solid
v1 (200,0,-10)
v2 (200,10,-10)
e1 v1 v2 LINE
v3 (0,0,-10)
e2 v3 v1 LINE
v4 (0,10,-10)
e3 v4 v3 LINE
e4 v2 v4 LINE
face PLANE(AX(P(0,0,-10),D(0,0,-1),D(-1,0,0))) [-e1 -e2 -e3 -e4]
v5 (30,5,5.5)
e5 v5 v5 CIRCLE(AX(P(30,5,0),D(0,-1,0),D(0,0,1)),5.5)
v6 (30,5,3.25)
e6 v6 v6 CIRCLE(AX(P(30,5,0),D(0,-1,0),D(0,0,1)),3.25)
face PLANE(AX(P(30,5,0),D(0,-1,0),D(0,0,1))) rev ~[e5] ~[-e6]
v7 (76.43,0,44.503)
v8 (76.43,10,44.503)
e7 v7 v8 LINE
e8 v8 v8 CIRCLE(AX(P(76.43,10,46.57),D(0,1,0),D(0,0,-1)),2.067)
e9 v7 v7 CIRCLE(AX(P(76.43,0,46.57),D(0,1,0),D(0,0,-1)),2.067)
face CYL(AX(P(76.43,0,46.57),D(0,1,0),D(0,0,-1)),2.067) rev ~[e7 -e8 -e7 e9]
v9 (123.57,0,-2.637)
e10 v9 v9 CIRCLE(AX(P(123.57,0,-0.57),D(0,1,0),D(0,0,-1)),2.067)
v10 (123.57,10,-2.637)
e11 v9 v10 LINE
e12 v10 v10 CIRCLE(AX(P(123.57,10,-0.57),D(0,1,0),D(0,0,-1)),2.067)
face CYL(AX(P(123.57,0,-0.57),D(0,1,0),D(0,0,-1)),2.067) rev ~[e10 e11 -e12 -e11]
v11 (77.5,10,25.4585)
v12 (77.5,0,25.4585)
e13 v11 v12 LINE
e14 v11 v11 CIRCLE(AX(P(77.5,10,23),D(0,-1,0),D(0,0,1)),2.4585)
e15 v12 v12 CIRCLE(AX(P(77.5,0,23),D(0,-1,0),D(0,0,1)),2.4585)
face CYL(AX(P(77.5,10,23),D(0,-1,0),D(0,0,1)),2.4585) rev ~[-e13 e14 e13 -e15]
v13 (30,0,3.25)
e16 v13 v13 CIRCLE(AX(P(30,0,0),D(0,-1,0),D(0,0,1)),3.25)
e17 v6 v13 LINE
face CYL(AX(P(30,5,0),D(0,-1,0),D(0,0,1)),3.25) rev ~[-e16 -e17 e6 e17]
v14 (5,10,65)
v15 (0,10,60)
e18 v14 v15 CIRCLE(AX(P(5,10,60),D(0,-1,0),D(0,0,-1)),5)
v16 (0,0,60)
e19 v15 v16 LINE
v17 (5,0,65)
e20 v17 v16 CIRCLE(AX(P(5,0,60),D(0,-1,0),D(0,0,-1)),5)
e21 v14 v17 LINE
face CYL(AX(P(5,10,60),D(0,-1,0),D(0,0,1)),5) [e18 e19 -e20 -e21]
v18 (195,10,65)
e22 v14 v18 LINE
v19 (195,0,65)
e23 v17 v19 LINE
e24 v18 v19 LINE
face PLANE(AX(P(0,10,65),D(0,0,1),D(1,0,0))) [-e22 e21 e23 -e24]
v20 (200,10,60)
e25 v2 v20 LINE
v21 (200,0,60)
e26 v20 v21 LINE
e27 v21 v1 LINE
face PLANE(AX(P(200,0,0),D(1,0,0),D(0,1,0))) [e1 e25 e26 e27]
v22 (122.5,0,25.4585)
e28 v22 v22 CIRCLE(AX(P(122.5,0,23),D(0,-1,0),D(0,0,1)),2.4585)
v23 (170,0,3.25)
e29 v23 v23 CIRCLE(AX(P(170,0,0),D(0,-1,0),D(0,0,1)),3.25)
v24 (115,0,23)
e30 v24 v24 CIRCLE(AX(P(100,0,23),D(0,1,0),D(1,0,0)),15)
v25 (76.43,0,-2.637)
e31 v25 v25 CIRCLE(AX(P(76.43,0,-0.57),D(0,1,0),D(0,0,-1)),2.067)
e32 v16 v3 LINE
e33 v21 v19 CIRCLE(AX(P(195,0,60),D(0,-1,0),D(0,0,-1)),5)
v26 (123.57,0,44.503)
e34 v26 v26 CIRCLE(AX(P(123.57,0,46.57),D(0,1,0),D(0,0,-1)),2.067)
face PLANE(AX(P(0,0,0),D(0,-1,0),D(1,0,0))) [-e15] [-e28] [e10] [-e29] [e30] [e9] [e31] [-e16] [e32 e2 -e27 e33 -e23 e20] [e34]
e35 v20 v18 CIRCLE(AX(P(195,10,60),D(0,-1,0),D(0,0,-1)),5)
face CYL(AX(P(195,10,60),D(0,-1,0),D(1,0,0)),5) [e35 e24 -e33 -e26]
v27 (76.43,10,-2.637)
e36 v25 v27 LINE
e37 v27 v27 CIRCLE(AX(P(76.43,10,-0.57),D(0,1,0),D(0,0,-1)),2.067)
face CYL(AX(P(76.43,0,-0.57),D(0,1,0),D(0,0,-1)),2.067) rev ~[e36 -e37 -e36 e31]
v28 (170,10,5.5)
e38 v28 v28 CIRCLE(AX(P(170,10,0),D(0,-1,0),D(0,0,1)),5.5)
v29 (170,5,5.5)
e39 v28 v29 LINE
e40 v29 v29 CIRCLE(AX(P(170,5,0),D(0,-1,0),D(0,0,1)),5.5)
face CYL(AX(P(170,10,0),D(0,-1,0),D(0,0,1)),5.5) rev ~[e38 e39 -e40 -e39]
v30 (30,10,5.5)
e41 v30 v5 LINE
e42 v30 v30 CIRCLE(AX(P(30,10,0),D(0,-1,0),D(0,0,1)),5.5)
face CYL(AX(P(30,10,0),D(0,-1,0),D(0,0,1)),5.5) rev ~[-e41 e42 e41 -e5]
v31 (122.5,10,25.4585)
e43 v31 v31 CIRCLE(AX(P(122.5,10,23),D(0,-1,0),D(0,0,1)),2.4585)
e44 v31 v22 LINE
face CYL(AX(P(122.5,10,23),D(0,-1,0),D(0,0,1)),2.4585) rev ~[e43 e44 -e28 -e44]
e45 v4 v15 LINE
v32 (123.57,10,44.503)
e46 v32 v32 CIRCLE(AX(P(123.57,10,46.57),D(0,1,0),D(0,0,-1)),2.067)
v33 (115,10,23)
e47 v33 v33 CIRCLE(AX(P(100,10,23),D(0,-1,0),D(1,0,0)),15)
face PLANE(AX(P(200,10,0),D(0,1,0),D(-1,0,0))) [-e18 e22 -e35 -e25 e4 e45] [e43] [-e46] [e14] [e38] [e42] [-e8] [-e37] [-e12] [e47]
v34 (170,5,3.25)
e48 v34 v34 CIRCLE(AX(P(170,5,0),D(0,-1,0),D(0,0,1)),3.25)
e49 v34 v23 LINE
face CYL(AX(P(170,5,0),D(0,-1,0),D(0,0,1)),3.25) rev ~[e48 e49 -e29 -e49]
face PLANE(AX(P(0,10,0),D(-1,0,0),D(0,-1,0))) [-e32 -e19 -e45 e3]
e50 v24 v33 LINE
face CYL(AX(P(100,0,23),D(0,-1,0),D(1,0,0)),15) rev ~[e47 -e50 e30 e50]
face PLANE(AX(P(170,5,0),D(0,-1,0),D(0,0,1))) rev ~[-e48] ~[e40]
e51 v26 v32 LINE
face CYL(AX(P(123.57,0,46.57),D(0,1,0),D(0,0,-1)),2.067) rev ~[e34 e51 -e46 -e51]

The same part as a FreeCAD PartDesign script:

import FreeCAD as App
import Part
import Sketcher

V = App.Vector


def edges_at(feature, points):
    """Names of the edges that pass closest to the given points."""
    edges = feature.Shape.Edges
    near = lambda p: min(range(len(edges)), key=lambda i: edges[i].distToShape(Part.Vertex(*p))[0])
    return sorted({f"Edge{near(p) + 1}" for p in points})

doc = App.newDocument("Part")
params = doc.addObject("Spreadsheet::Sheet", "Params")
for row, (alias, value) in enumerate([
    ("sketch1_width", "200 mm"),
    ("sketch1_height", "10 mm"),
    ("pad1_length", "70 mm"),
    ("sketch2_diameter", "30 mm"),
    ("pocket1_length", "10 mm"),
    ("sketch3_width", "200 mm"),
    ("sketch3_height", "10 mm"),
    ("pad2_length", "10 mm"),
    ("sketch4_height", "5 mm"),
    ("sketch4_width", "200 mm"),
    ("pocket2_length", "10 mm"),
    ("sketch5_diameter", "6.5 mm"),
    ("hole_diameter", "6.5 mm"),
    ("hole_cbore_diameter", "11 mm"),
    ("hole_cbore_depth", "5 mm"),
    ("hole2_diameter", "4.917 mm"),
    ("hole3_diameter", "4.134 mm"),
    ("fillet_radius", "5 mm"),
], start=1):
    params.set(f"A{row}", alias)
    params.set(f"B{row}", "=" + value)
    params.setAlias(f"B{row}", alias)

body = doc.addObject("PartDesign::Body", "Body")

# Sketch on XY plane
sketch1 = body.newObject("Sketcher::SketchObject", "Sketch")
sketch1.AttachmentSupport = (doc.getObject("XY_Plane"), [""])
sketch1.MapMode = "FlatFace"
sketch1.addGeometry(Part.LineSegment(V(0, 10, 0), V(0, 0, 0)), False)
sketch1.addGeometry(Part.LineSegment(V(0, 0, 0), V(200, 0, 0)), False)
sketch1.addGeometry(Part.LineSegment(V(200, 0, 0), V(200, 10, 0)), False)
sketch1.addGeometry(Part.LineSegment(V(200, 10, 0), V(0, 10, 0)), False)
sketch1.addConstraint(Sketcher.Constraint("Coincident", 0, 2, 1, 1))
sketch1.addConstraint(Sketcher.Constraint("Coincident", 1, 2, 2, 1))
sketch1.addConstraint(Sketcher.Constraint("Coincident", 2, 2, 3, 1))
sketch1.addConstraint(Sketcher.Constraint("Coincident", 3, 2, 0, 1))
sketch1.addConstraint(Sketcher.Constraint("Vertical", 0))
sketch1.addConstraint(Sketcher.Constraint("Horizontal", 1))
sketch1.addConstraint(Sketcher.Constraint("Vertical", 2))
sketch1.addConstraint(Sketcher.Constraint("Horizontal", 3))
sketch1.addConstraint(Sketcher.Constraint("Coincident", 0, 2, -1, 1))
sketch1.addConstraint(Sketcher.Constraint("DistanceX", 1, 1, 1, 2, 200.0))
sketch1.addConstraint(Sketcher.Constraint("DistanceY", 0, 2, 0, 1, 10.0))
sketch1.setExpression("Constraints[9]", "Params.sketch1_width")
sketch1.setExpression("Constraints[10]", "Params.sketch1_height")
pad1 = body.newObject("PartDesign::Pad", "Pad")
pad1.Profile = sketch1
pad1.setExpression("Length", "Params.pad1_length")

# Sketch on XZ plane
sketch2 = body.newObject("Sketcher::SketchObject", "Sketch001")
sketch2.AttachmentSupport = (doc.getObject("XZ_Plane"), [""])
sketch2.MapMode = "FlatFace"
sketch2.addGeometry(Part.Circle(V(100, 23, 0), V(0, 0, 1), 15), False)
sketch2.addConstraint(Sketcher.Constraint("Diameter", 0, 30.0))
sketch2.addConstraint(Sketcher.Constraint("DistanceX", -1, 1, 0, 3, 100.0))
sketch2.addConstraint(Sketcher.Constraint("DistanceY", -1, 1, 0, 3, 23.0))
sketch2.setExpression("Constraints[0]", "Params.sketch2_diameter")
pocket1 = body.newObject("PartDesign::Pocket", "Pocket")
pocket1.Profile = sketch2
pocket1.setExpression("Length", "Params.pocket1_length")

# Sketch on XY plane
sketch3 = body.newObject("Sketcher::SketchObject", "Sketch002")
sketch3.AttachmentSupport = (doc.getObject("XY_Plane"), [""])
sketch3.MapMode = "FlatFace"
sketch3.addGeometry(Part.LineSegment(V(200, 10, 0), V(200, 0, 0)), False)
sketch3.addGeometry(Part.LineSegment(V(200, 0, 0), V(0, 0, 0)), False)
sketch3.addGeometry(Part.LineSegment(V(0, 0, 0), V(0, 10, 0)), False)
sketch3.addGeometry(Part.LineSegment(V(0, 10, 0), V(200, 10, 0)), False)
sketch3.addConstraint(Sketcher.Constraint("Coincident", 0, 2, 1, 1))
sketch3.addConstraint(Sketcher.Constraint("Coincident", 1, 2, 2, 1))
sketch3.addConstraint(Sketcher.Constraint("Coincident", 2, 2, 3, 1))
sketch3.addConstraint(Sketcher.Constraint("Coincident", 3, 2, 0, 1))
sketch3.addConstraint(Sketcher.Constraint("Vertical", 0))
sketch3.addConstraint(Sketcher.Constraint("Horizontal", 1))
sketch3.addConstraint(Sketcher.Constraint("Vertical", 2))
sketch3.addConstraint(Sketcher.Constraint("Horizontal", 3))
sketch3.addConstraint(Sketcher.Constraint("Coincident", 1, 2, -1, 1))
sketch3.addConstraint(Sketcher.Constraint("DistanceX", 1, 2, 1, 1, 200.0))
sketch3.addConstraint(Sketcher.Constraint("DistanceY", 0, 2, 0, 1, 10.0))
sketch3.setExpression("Constraints[9]", "Params.sketch3_width")
sketch3.setExpression("Constraints[10]", "Params.sketch3_height")
pad2 = body.newObject("PartDesign::Pad", "Pad001")
pad2.Profile = sketch3
pad2.setExpression("Length", "Params.pad2_length")
pad2.Reversed = True

# Sketch on XZ plane
sketch4 = body.newObject("Sketcher::SketchObject", "Sketch003")
sketch4.AttachmentSupport = (doc.getObject("XZ_Plane"), [""])
sketch4.MapMode = "FlatFace"
sketch4.AttachmentOffset = App.Placement(V(0, 0, -10), App.Rotation())
sketch4.addGeometry(Part.LineSegment(V(0, 70, 0), V(200, 70, 0)), False)
sketch4.addGeometry(Part.LineSegment(V(200, 70, 0), V(200, 65, 0)), False)
sketch4.addGeometry(Part.LineSegment(V(200, 65, 0), V(0, 65, 0)), False)
sketch4.addGeometry(Part.LineSegment(V(0, 65, 0), V(0, 70, 0)), False)
sketch4.addConstraint(Sketcher.Constraint("Coincident", 0, 2, 1, 1))
sketch4.addConstraint(Sketcher.Constraint("Coincident", 1, 2, 2, 1))
sketch4.addConstraint(Sketcher.Constraint("Coincident", 2, 2, 3, 1))
sketch4.addConstraint(Sketcher.Constraint("Coincident", 3, 2, 0, 1))
sketch4.addConstraint(Sketcher.Constraint("Horizontal", 0))
sketch4.addConstraint(Sketcher.Constraint("Vertical", 1))
sketch4.addConstraint(Sketcher.Constraint("Horizontal", 2))
sketch4.addConstraint(Sketcher.Constraint("Vertical", 3))
sketch4.addConstraint(Sketcher.Constraint("PointOnObject", 2, 2, -2))
sketch4.addConstraint(Sketcher.Constraint("DistanceY", 1, 2, 1, 1, 5.0))
sketch4.addConstraint(Sketcher.Constraint("DistanceX", 0, 1, 0, 2, 200.0))
sketch4.addConstraint(Sketcher.Constraint("DistanceY", -1, 1, 0, 2, 70.0))
sketch4.setExpression("Constraints[9]", "Params.sketch4_height")
sketch4.setExpression("Constraints[10]", "Params.sketch4_width")
pocket2 = body.newObject("PartDesign::Pocket", "Pocket001")
pocket2.Profile = sketch4
pocket2.setExpression("Length", "Params.pocket2_length")
pocket2.Reversed = True

# Sketch on XZ plane
sketch5 = body.newObject("Sketcher::SketchObject", "Sketch004")
sketch5.AttachmentSupport = (doc.getObject("XZ_Plane"), [""])
sketch5.MapMode = "FlatFace"
sketch5.AttachmentOffset = App.Placement(V(0, 0, -10), App.Rotation())
sketch5.addGeometry(Part.Circle(V(30, 0, 0), V(0, 0, 1), 3.2), False)
sketch5.addGeometry(Part.Circle(V(170, 0, 0), V(0, 0, 1), 3.2), False)
sketch5.addConstraint(Sketcher.Constraint("Equal", 0, 1))
sketch5.addConstraint(Sketcher.Constraint("PointOnObject", 0, 3, -1))
sketch5.addConstraint(Sketcher.Constraint("PointOnObject", 1, 3, -1))
sketch5.addConstraint(Sketcher.Constraint("Diameter", 0, 6.5))
sketch5.addConstraint(Sketcher.Constraint("DistanceX", -1, 1, 0, 3, 30.0))
sketch5.addConstraint(Sketcher.Constraint("DistanceX", -1, 1, 1, 3, 170.0))
sketch5.setExpression("Constraints[3]", "Params.sketch5_diameter")
doc.recompute()
hole = body.newObject("PartDesign::Hole", "Hole")
hole.Profile = sketch5
hole.ThreadType = "None"
hole.setExpression("Diameter", "Params.hole_diameter")
hole.DepthType = "ThroughAll"
hole.HoleCutType = "Counterbore"
hole.setExpression("HoleCutDiameter", "Params.hole_cbore_diameter")
hole.setExpression("HoleCutDepth", "Params.hole_cbore_depth")
hole.Reversed = True

# Sketch on XZ plane
sketch6 = body.newObject("Sketcher::SketchObject", "Sketch005")
sketch6.AttachmentSupport = (doc.getObject("XZ_Plane"), [""])
sketch6.MapMode = "FlatFace"
sketch6.AttachmentOffset = App.Placement(V(0, 0, -10), App.Rotation())
sketch6.addGeometry(Part.Circle(V(77.5, 23, 0), V(0, 0, 1), 2.5), False)
sketch6.addGeometry(Part.Circle(V(122.5, 23, 0), V(0, 0, 1), 2.5), False)
sketch6.addConstraint(Sketcher.Constraint("Equal", 0, 1))
sketch6.addConstraint(Sketcher.Constraint("Horizontal", 0, 3, 1, 3))
sketch6.addConstraint(Sketcher.Constraint("Diameter", 0, 4.917))
sketch6.addConstraint(Sketcher.Constraint("DistanceY", -1, 1, 0, 3, 23.0))
sketch6.addConstraint(Sketcher.Constraint("DistanceX", 0, 3, 1, 3, 45.0))
sketch6.addConstraint(Sketcher.Constraint("DistanceX", -1, 1, 0, 3, 77.5))
doc.recompute()
hole2 = body.newObject("PartDesign::Hole", "Hole001")
hole2.Profile = sketch6
hole2.ThreadType = "None"
hole2.setExpression("Diameter", "Params.hole2_diameter")
hole2.DepthType = "ThroughAll"
hole2.Reversed = True

# Sketch on XZ plane
sketch7 = body.newObject("Sketcher::SketchObject", "Sketch006")
sketch7.AttachmentSupport = (doc.getObject("XZ_Plane"), [""])
sketch7.MapMode = "FlatFace"
sketch7.addGeometry(Part.Circle(V(123.6, 46.6, 0), V(0, 0, 1), 2.1), False)
sketch7.addGeometry(Part.Circle(V(76.4, 46.6, 0), V(0, 0, 1), 2.1), False)
sketch7.addGeometry(Part.Circle(V(123.6, -0.6, 0), V(0, 0, 1), 2.1), False)
sketch7.addGeometry(Part.Circle(V(76.4, -0.6, 0), V(0, 0, 1), 2.1), False)
sketch7.addConstraint(Sketcher.Constraint("Equal", 0, 1))
sketch7.addConstraint(Sketcher.Constraint("Equal", 1, 2))
sketch7.addConstraint(Sketcher.Constraint("Equal", 2, 3))
sketch7.addConstraint(Sketcher.Constraint("Horizontal", 0, 3, 1, 3))
sketch7.addConstraint(Sketcher.Constraint("Horizontal", 2, 3, 3, 3))
sketch7.addConstraint(Sketcher.Constraint("Vertical", 0, 3, 2, 3))
sketch7.addConstraint(Sketcher.Constraint("Vertical", 1, 3, 3, 3))
sketch7.addConstraint(Sketcher.Constraint("Diameter", 0, 4.134))
sketch7.addConstraint(Sketcher.Constraint("DistanceX", -1, 1, 0, 3, 123.57))
sketch7.addConstraint(Sketcher.Constraint("DistanceY", -1, 1, 0, 3, 46.57))
sketch7.addConstraint(Sketcher.Constraint("DistanceX", -1, 1, 1, 3, 76.43))
sketch7.addConstraint(Sketcher.Constraint("DistanceY", 2, 3, -1, 1, 0.57))
doc.recompute()
hole3 = body.newObject("PartDesign::Hole", "Hole002")
hole3.Profile = sketch7
hole3.ThreadType = "None"
hole3.setExpression("Diameter", "Params.hole3_diameter")
hole3.DepthType = "ThroughAll"
doc.recompute()

fillet = body.newObject("PartDesign::Fillet", "Fillet")
fillet.Base = (hole3, edges_at(hole3, [(200, 5, 65), (0, 5, 65)]))
fillet.setExpression("Radius", "Params.fillet_radius")

doc.recompute()
